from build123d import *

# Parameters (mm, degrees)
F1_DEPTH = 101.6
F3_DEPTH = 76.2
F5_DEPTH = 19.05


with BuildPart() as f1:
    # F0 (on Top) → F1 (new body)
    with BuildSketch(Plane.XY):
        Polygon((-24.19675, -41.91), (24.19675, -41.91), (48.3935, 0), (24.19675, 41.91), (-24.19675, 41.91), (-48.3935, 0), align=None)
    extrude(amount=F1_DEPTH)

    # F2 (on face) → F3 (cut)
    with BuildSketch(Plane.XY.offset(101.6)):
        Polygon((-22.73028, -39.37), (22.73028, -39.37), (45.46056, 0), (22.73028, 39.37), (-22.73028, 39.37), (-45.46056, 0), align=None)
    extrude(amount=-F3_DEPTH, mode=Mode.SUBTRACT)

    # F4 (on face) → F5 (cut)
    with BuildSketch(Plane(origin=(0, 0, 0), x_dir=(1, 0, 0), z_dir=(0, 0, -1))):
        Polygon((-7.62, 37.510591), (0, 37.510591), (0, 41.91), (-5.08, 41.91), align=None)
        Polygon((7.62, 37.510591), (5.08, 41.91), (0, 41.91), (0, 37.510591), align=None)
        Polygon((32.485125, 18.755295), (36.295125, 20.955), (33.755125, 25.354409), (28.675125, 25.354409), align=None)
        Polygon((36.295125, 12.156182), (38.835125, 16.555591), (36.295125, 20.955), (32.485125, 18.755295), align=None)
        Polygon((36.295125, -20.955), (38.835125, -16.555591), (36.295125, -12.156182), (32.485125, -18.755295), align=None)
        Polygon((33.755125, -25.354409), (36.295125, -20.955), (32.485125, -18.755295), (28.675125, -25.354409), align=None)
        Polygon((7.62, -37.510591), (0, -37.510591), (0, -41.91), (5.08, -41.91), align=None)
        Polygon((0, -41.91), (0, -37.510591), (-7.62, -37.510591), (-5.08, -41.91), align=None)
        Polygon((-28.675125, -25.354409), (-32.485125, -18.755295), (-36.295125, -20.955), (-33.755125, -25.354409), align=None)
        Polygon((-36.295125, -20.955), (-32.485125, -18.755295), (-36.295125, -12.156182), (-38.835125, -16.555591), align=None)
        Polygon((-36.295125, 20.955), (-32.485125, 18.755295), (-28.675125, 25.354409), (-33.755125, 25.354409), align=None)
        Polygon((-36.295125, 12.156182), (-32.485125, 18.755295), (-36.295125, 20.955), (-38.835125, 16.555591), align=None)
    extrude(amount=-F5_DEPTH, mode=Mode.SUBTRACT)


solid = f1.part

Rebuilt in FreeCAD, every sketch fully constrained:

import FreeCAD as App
import Part
import Sketcher

V = App.Vector
Q = App.Units.Quantity

doc = App.newDocument("Part")
params = doc.addObject("Spreadsheet::Sheet", "Params")
for row, (alias, value) in enumerate([
    ("pad1_length", "4 in"),
    ("pocket1_length", "3 in"),
    ("sketch3_width", "0.6 in"),
    ("sketch3_width2", "0.4 in"),
    ("sketch3_length", "0.3 in"),
    ("pocket2_length", "0.75 in"),
], start=1):
    params.set(f"A{row}", alias)
    params.set(f"B{row}", "=" + value)
    params.setAlias(f"B{row}", alias)

body = doc.addObject("PartDesign::Body", "Body")

sketch1 = body.newObject("Sketcher::SketchObject", "Sketch")
sketch1.AttachmentSupport = (doc.getObject("XY_Plane"), [""])
sketch1.MapMode = "FlatFace"
sketch1.addGeometry(Part.LineSegment(V(-24.19675, -41.91, 0), V(24.19675, -41.91, 0)), False)
sketch1.addGeometry(Part.LineSegment(V(24.19675, -41.91, 0), V(48.3935, 0, 0)), False)
sketch1.addGeometry(Part.LineSegment(V(48.3935, 0, 0), V(24.19675, 41.91, 0)), False)
sketch1.addGeometry(Part.LineSegment(V(24.19675, 41.91, 0), V(-24.19675, 41.91, 0)), False)
sketch1.addGeometry(Part.LineSegment(V(-24.19675, 41.91, 0), V(-48.3935, 0, 0)), False)
sketch1.addGeometry(Part.LineSegment(V(-48.3935, 0, 0), V(-24.19675, -41.91, 0)), False)
sketch1.addConstraint(Sketcher.Constraint("Coincident", 0, 2, 1, 1))
sketch1.addConstraint(Sketcher.Constraint("Coincident", 1, 2, 2, 1))
sketch1.addConstraint(Sketcher.Constraint("Coincident", 2, 2, 3, 1))
sketch1.addConstraint(Sketcher.Constraint("Coincident", 3, 2, 4, 1))
sketch1.addConstraint(Sketcher.Constraint("Coincident", 4, 2, 5, 1))
sketch1.addConstraint(Sketcher.Constraint("Coincident", 5, 2, 0, 1))
sketch1.addConstraint(Sketcher.Constraint("Horizontal", 0))
sketch1.addConstraint(Sketcher.Constraint("Horizontal", 3))
sketch1.addConstraint(Sketcher.Constraint("Symmetric", 0, 2, 3, 2, -1, 1))
sketch1.addConstraint(Sketcher.Constraint("Symmetric", 1, 2, 4, 2, -1, 1))
sketch1.addConstraint(Sketcher.Constraint("PointOnObject", 1, 2, -1))
sketch1.addConstraint(Sketcher.Constraint("Parallel", 2, 5))
sketch1.addConstraint(Sketcher.Constraint("Vertical", 0, 2, 2, 2))
sketch1.addConstraint(Sketcher.Constraint("Angle", 1, Q("60 deg")))
sketch1.addConstraint(Sketcher.Constraint("DistanceY", 0, 2, 2, 2, Q("3.3 in")))
sketch1.addConstraint(Sketcher.Constraint("DistanceX", 0, 1, 0, 2, 48.3935))
pad1 = body.newObject("PartDesign::Pad", "Pad")
pad1.Profile = sketch1
pad1.setExpression("Length", "Params.pad1_length")

sketch2 = body.newObject("Sketcher::SketchObject", "Sketch001")
sketch2.AttachmentSupport = (doc.getObject("XY_Plane"), [""])
sketch2.MapMode = "FlatFace"
sketch2.AttachmentOffset = App.Placement(V(0, 0, 4 * 25.4), App.Rotation())
sketch2.addGeometry(Part.LineSegment(V(-22.73028, -39.37, 0), V(22.73028, -39.37, 0)), False)
sketch2.addGeometry(Part.LineSegment(V(22.73028, -39.37, 0), V(45.46056, 0, 0)), False)
sketch2.addGeometry(Part.LineSegment(V(45.46056, 0, 0), V(22.73028, 39.37, 0)), False)
sketch2.addGeometry(Part.LineSegment(V(22.73028, 39.37, 0), V(-22.73028, 39.37, 0)), False)
sketch2.addGeometry(Part.LineSegment(V(-22.73028, 39.37, 0), V(-45.46056, 0, 0)), False)
sketch2.addGeometry(Part.LineSegment(V(-45.46056, 0, 0), V(-22.73028, -39.37, 0)), False)
sketch2.addConstraint(Sketcher.Constraint("Coincident", 0, 2, 1, 1))
sketch2.addConstraint(Sketcher.Constraint("Coincident", 1, 2, 2, 1))
sketch2.addConstraint(Sketcher.Constraint("Coincident", 2, 2, 3, 1))
sketch2.addConstraint(Sketcher.Constraint("Coincident", 3, 2, 4, 1))
sketch2.addConstraint(Sketcher.Constraint("Coincident", 4, 2, 5, 1))
sketch2.addConstraint(Sketcher.Constraint("Coincident", 5, 2, 0, 1))
sketch2.addConstraint(Sketcher.Constraint("Horizontal", 0))
sketch2.addConstraint(Sketcher.Constraint("Horizontal", 3))
sketch2.addConstraint(Sketcher.Constraint("Symmetric", 0, 2, 3, 2, -1, 1))
sketch2.addConstraint(Sketcher.Constraint("Symmetric", 1, 2, 4, 2, -1, 1))
sketch2.addConstraint(Sketcher.Constraint("PointOnObject", 1, 2, -1))
sketch2.addConstraint(Sketcher.Constraint("Parallel", 2, 5))
sketch2.addConstraint(Sketcher.Constraint("Vertical", 0, 2, 2, 2))
sketch2.addConstraint(Sketcher.Constraint("Angle", 1, Q("60 deg")))
sketch2.addConstraint(Sketcher.Constraint("DistanceY", 0, 2, 2, 2, Q("3.1 in")))
sketch2.addConstraint(Sketcher.Constraint("DistanceX", 0, 1, 0, 2, 45.46056))
pocket1 = body.newObject("PartDesign::Pocket", "Pocket")
pocket1.Profile = sketch2
pocket1.setExpression("Length", "Params.pocket1_length")

sketch3 = body.newObject("Sketcher::SketchObject", "Sketch002")
sketch3.AttachmentSupport = (doc.getObject("XY_Plane"), [""])
sketch3.MapMode = "FlatFace"
sketch3.addGeometry(Part.LineSegment(V(-7.62, -37.510591, 0), V(7.62, -37.510591, 0)), False)
sketch3.addGeometry(Part.LineSegment(V(7.62, -37.510591, 0), V(5.08, -41.91, 0)), False)
sketch3.addGeometry(Part.LineSegment(V(5.08, -41.91, 0), V(-5.08, -41.91, 0)), False)
sketch3.addGeometry(Part.LineSegment(V(-5.08, -41.91, 0), V(-7.62, -37.510591, 0)), False)
sketch3.addGeometry(Part.LineSegment(V(33.755125, -25.354409, 0), V(28.675125, -25.354409, 0)), False)
sketch3.addGeometry(Part.LineSegment(V(28.675125, -25.354409, 0), V(32.485125, -18.755295, 0)), False)
sketch3.addGeometry(Part.LineSegment(V(32.485125, -18.755295, 0), V(36.295125, -12.156182, 0)), False)
sketch3.addGeometry(Part.LineSegment(V(36.295125, -12.156182, 0), V(38.835125, -16.555591, 0)), False)
sketch3.addGeometry(Part.LineSegment(V(38.835125, -16.555591, 0), V(33.755125, -25.354409, 0)), False)
sketch3.addGeometry(Part.LineSegment(V(38.835125, 16.555591, 0), V(36.295125, 12.156182, 0)), False)
sketch3.addGeometry(Part.LineSegment(V(36.295125, 12.156182, 0), V(32.485125, 18.755295, 0)), False)
sketch3.addGeometry(Part.LineSegment(V(32.485125, 18.755295, 0), V(28.675125, 25.354409, 0)), False)
sketch3.addGeometry(Part.LineSegment(V(28.675125, 25.354409, 0), V(33.755125, 25.354409, 0)), False)
sketch3.addGeometry(Part.LineSegment(V(33.755125, 25.354409, 0), V(38.835125, 16.555591, 0)), False)
sketch3.addGeometry(Part.LineSegment(V(7.62, 37.510591, 0), V(-7.62, 37.510591, 0)), False)
sketch3.addGeometry(Part.LineSegment(V(-7.62, 37.510591, 0), V(-5.08, 41.91, 0)), False)
sketch3.addGeometry(Part.LineSegment(V(-5.08, 41.91, 0), V(5.08, 41.91, 0)), False)
sketch3.addGeometry(Part.LineSegment(V(5.08, 41.91, 0), V(7.62, 37.510591, 0)), False)
sketch3.addGeometry(Part.LineSegment(V(-28.675125, 25.354409, 0), V(-32.485125, 18.755295, 0)), False)
sketch3.addGeometry(Part.LineSegment(V(-32.485125, 18.755295, 0), V(-36.295125, 12.156182, 0)), False)
sketch3.addGeometry(Part.LineSegment(V(-36.295125, 12.156182, 0), V(-38.835125, 16.555591, 0)), False)
sketch3.addGeometry(Part.LineSegment(V(-38.835125, 16.555591, 0), V(-33.755125, 25.354409, 0)), False)
sketch3.addGeometry(Part.LineSegment(V(-33.755125, 25.354409, 0), V(-28.675125, 25.354409, 0)), False)
sketch3.addGeometry(Part.LineSegment(V(-32.485125, -18.755295, 0), V(-28.675125, -25.354409, 0)), False)
sketch3.addGeometry(Part.LineSegment(V(-28.675125, -25.354409, 0), V(-33.755125, -25.354409, 0)), False)
sketch3.addGeometry(Part.LineSegment(V(-33.755125, -25.354409, 0), V(-38.835125, -16.555591, 0)), False)
sketch3.addGeometry(Part.LineSegment(V(-38.835125, -16.555591, 0), V(-36.295125, -12.156182, 0)), False)
sketch3.addGeometry(Part.LineSegment(V(-36.295125, -12.156182, 0), V(-32.485125, -18.755295, 0)), False)
sketch3.addConstraint(Sketcher.Constraint("Coincident", 0, 2, 1, 1))
sketch3.addConstraint(Sketcher.Constraint("Coincident", 1, 2, 2, 1))
sketch3.addConstraint(Sketcher.Constraint("Coincident", 2, 2, 3, 1))
sketch3.addConstraint(Sketcher.Constraint("Coincident", 3, 2, 0, 1))
sketch3.addConstraint(Sketcher.Constraint("Coincident", 4, 2, 5, 1))
sketch3.addConstraint(Sketcher.Constraint("Coincident", 5, 2, 6, 1))
sketch3.addConstraint(Sketcher.Constraint("Coincident", 6, 2, 7, 1))
sketch3.addConstraint(Sketcher.Constraint("Coincident", 7, 2, 8, 1))
sketch3.addConstraint(Sketcher.Constraint("Coincident", 8, 2, 4, 1))
sketch3.addConstraint(Sketcher.Constraint("Coincident", 9, 2, 10, 1))
sketch3.addConstraint(Sketcher.Constraint("Coincident", 10, 2, 11, 1))
sketch3.addConstraint(Sketcher.Constraint("Coincident", 11, 2, 12, 1))
sketch3.addConstraint(Sketcher.Constraint("Coincident", 12, 2, 13, 1))
sketch3.addConstraint(Sketcher.Constraint("Coincident", 13, 2, 9, 1))
sketch3.addConstraint(Sketcher.Constraint("Coincident", 14, 2, 15, 1))
sketch3.addConstraint(Sketcher.Constraint("Coincident", 15, 2, 16, 1))
sketch3.addConstraint(Sketcher.Constraint("Coincident", 16, 2, 17, 1))
sketch3.addConstraint(Sketcher.Constraint("Coincident", 17, 2, 14, 1))
sketch3.addConstraint(Sketcher.Constraint("Coincident", 18, 2, 19, 1))
sketch3.addConstraint(Sketcher.Constraint("Coincident", 19, 2, 20, 1))
sketch3.addConstraint(Sketcher.Constraint("Coincident", 20, 2, 21, 1))
sketch3.addConstraint(Sketcher.Constraint("Coincident", 21, 2, 22, 1))
sketch3.addConstraint(Sketcher.Constraint("Coincident", 22, 2, 18, 1))
sketch3.addConstraint(Sketcher.Constraint("Coincident", 23, 2, 24, 1))
sketch3.addConstraint(Sketcher.Constraint("Coincident", 24, 2, 25, 1))
sketch3.addConstraint(Sketcher.Constraint("Coincident", 25, 2, 26, 1))
sketch3.addConstraint(Sketcher.Constraint("Coincident", 26, 2, 27, 1))
sketch3.addConstraint(Sketcher.Constraint("Coincident", 27, 2, 23, 1))
sketch3.addConstraint(Sketcher.Constraint("Horizontal", 0))
sketch3.addConstraint(Sketcher.Constraint("Horizontal", 2))
sketch3.addConstraint(Sketcher.Constraint("Horizontal", 4))
sketch3.addConstraint(Sketcher.Constraint("Horizontal", 12))
sketch3.addConstraint(Sketcher.Constraint("Horizontal", 14))
sketch3.addConstraint(Sketcher.Constraint("Horizontal", 16))
sketch3.addConstraint(Sketcher.Constraint("Horizontal", 22))
sketch3.addConstraint(Sketcher.Constraint("Horizontal", 24))
sketch3.addConstraint(Sketcher.Constraint("Symmetric", 0, 2, 14, 2, -1, 1))
sketch3.addConstraint(Sketcher.Constraint("Symmetric", 1, 2, 15, 2, -1, 1))
sketch3.addConstraint(Sketcher.Constraint("Symmetric", 5, 2, 18, 2, -1, 1))
sketch3.addConstraint(Sketcher.Constraint("Symmetric", 6, 2, 19, 2, -1, 1))
sketch3.addConstraint(Sketcher.Constraint("Symmetric", 7, 2, 20, 2, -1, 1))
sketch3.addConstraint(Sketcher.Constraint("Symmetric", 8, 2, 21, 2, -1, 1))
sketch3.addConstraint(Sketcher.Constraint("Symmetric", 11, 2, 23, 2, -1, 1))
sketch3.addConstraint(Sketcher.Constraint("Symmetric", 13, 2, 25, 2, -1, 1))
sketch3.addConstraint(Sketcher.Constraint("Symmetric", 9, 2, 26, 2, -1, 1))
sketch3.addConstraint(Sketcher.Constraint("Symmetric", 10, 2, 27, 2, -1, 1))
sketch3.addConstraint(Sketcher.Constraint("Symmetric", 10, 2, 18, 2, -2))
sketch3.addConstraint(Sketcher.Constraint("Symmetric", 9, 2, 19, 2, -2))
sketch3.addConstraint(Sketcher.Constraint("Symmetric", 13, 2, 20, 2, -2))
sketch3.addConstraint(Sketcher.Constraint("Symmetric", 12, 2, 21, 2, -2))
sketch3.addConstraint(Sketcher.Constraint("Parallel", 1, 5))
sketch3.addConstraint(Sketcher.Constraint("Parallel", 5, 6))
sketch3.addConstraint(Sketcher.Constraint("Parallel", 3, 7))
sketch3.addConstraint(Sketcher.Constraint("Parallel", 6, 8))
sketch3.addConstraint(Sketcher.Constraint("Parallel", 8, 9))
sketch3.addConstraint(Sketcher.Constraint("Parallel", 10, 11))
sketch3.addConstraint(Sketcher.Constraint("Parallel", 13, 17))
sketch3.addConstraint(Sketcher.Constraint("Parallel", 15, 18))
sketch3.addConstraint(Sketcher.Constraint("Parallel", 23, 25))
sketch3.addConstraint(Sketcher.Constraint("Vertical", 3, 2, 14, 2))
sketch3.addConstraint(Sketcher.Constraint("Vertical", 1, 2, 16, 2))
sketch3.addConstraint(Sketcher.Constraint("Equal", 5, 6))
sketch3.addConstraint(Sketcher.Constraint("Equal", 3, 7))
sketch3.addConstraint(Sketcher.Constraint("DistanceX", 0, 1, 0, 2, Q("0.6 in")))
sketch3.addConstraint(Sketcher.Constraint("DistanceX", 2, 2, 2, 1, Q("0.4 in")))
sketch3.addConstraint(Sketcher.Constraint("Angle", 1, Q("-120 deg")))
sketch3.addConstraint(Sketcher.Constraint("Distance", 5, Q("0.3 in")))
sketch3.addConstraint(Sketcher.Constraint("DistanceY", 1, 2, -1, 1, Q("1.65 in")))
sketch3.addConstraint(Sketcher.Constraint("DistanceY", 7, 2, 11, 2, Q("1.65 in")))
sketch3.addConstraint(Sketcher.Constraint("DistanceX", -1, 1, 4, 2, 28.675125))
sketch3.setExpression("Constraints[63]", "Params.sketch3_width")
sketch3.setExpression("Constraints[64]", "Params.sketch3_width2")
sketch3.setExpression("Constraints[66]", "Params.sketch3_length")
pocket2 = body.newObject("PartDesign::Pocket", "Pocket001")
pocket2.Profile = sketch3
pocket2.setExpression("Length", "Params.pocket2_length")
pocket2.Reversed = True

doc.recompute()
